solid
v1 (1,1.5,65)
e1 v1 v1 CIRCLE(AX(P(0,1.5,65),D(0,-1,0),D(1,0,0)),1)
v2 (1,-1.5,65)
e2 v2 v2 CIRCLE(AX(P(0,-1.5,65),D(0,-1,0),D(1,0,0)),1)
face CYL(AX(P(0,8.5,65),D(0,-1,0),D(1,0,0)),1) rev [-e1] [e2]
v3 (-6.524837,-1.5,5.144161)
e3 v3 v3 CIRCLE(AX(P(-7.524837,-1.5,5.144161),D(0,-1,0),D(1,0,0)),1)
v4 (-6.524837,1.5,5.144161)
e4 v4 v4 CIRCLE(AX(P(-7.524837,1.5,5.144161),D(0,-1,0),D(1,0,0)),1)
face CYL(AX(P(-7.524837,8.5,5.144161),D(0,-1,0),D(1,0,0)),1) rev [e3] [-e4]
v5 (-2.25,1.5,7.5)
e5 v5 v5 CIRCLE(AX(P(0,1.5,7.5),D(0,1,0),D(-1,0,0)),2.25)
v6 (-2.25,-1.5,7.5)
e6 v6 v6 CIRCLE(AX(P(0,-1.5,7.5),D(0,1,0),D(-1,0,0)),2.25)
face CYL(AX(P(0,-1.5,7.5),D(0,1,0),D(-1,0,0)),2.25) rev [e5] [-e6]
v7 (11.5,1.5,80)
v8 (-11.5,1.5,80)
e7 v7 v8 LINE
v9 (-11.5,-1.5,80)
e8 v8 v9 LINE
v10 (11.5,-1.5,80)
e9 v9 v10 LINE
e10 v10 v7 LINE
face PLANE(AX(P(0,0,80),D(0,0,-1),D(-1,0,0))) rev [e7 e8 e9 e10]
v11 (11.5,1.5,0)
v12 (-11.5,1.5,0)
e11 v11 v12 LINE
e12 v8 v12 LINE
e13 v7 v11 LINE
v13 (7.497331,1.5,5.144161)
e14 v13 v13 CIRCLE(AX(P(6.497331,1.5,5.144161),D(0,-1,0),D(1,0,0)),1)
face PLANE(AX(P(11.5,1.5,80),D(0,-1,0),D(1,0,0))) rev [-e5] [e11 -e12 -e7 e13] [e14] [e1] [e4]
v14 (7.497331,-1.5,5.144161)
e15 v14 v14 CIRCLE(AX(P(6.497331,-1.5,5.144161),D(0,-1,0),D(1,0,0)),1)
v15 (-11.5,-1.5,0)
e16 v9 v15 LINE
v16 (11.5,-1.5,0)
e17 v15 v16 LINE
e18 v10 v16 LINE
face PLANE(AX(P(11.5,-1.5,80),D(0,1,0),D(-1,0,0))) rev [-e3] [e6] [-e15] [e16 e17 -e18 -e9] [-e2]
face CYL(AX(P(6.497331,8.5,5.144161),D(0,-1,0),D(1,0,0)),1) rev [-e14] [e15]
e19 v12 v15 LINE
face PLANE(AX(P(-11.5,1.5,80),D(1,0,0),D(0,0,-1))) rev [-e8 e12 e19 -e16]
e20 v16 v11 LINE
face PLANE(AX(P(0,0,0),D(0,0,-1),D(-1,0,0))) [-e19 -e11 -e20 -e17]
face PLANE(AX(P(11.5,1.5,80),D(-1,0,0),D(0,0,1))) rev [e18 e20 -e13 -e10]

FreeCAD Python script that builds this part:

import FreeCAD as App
import Part
import Sketcher

V = App.Vector


def add_polygon(sketch, points):
    """Adds a closed chain of lines whose ends are joined by coincident constraints."""
    first, n = sketch.GeometryCount, len(points)
    for a, b in zip(points, points[1:] + points[:1]):
        sketch.addGeometry(Part.LineSegment(App.Vector(*a, 0), App.Vector(*b, 0)), False)
    for i in range(n):
        sketch.addConstraint(Sketcher.Constraint("Coincident", first + i, 2, first + (i + 1) % n, 1))

doc = App.newDocument("Part")
body = doc.addObject("PartDesign::Body", "Body")

# Sketch on XY plane
sketch1 = body.newObject("Sketcher::SketchObject", "Sketch")
sketch1.AttachmentSupport = (doc.getObject("XY_Plane"), [""])
sketch1.MapMode = "FlatFace"
add_polygon(sketch1, [(-11.5, 1.5), (-11.5, -1.5), (11.5, -1.5), (11.5, 1.5)])  # lines 0-3
sketch1.addConstraint([
    Sketcher.Constraint("Vertical", 0),
    Sketcher.Constraint("Horizontal", 1),
    Sketcher.Constraint("Vertical", 2),
    Sketcher.Constraint("Horizontal", 3),
    Sketcher.Constraint("Symmetric", 0, 2, 2, 2, -1, 1),
    Sketcher.Constraint("DistanceX", 1, 1, 1, 2, 23.0),
    Sketcher.Constraint("DistanceY", 0, 2, 0, 1, 3.0),
])
pad1 = body.newObject("PartDesign::Pad", "Pad")
pad1.Profile = sketch1
pad1.Length = 80

# Sketch on XZ plane
sketch2 = body.newObject("Sketcher::SketchObject", "Sketch001")
sketch2.AttachmentSupport = (doc.getObject("XZ_Plane"), [""])
sketch2.MapMode = "FlatFace"
sketch2.AttachmentOffset = App.Placement(V(0, 0, 1.5), App.Rotation())
sketch2.addGeometry(Part.Circle(V(0, 65, 0), V(0, 0, 1), 1), False)
sketch2.addConstraint([
    Sketcher.Constraint("PointOnObject", 0, 3, -2),
    Sketcher.Constraint("Diameter", 0, 2.0),
    Sketcher.Constraint("DistanceY", -1, 1, 0, 3, 65.0),
])
pocket1 = body.newObject("PartDesign::Pocket", "Pocket")
pocket1.Profile = sketch2
pocket1.Length = 10

# Sketch on XZ plane
sketch3 = body.newObject("Sketcher::SketchObject", "Sketch002")
sketch3.AttachmentSupport = (doc.getObject("XZ_Plane"), [""])
sketch3.MapMode = "FlatFace"
sketch3.AttachmentOffset = App.Placement(V(0, 0, 1.5), App.Rotation())
sketch3.addGeometry([
    Part.Circle(V(6.5, 5.1, 0), V(0, 0, 1), 1),
    Part.Circle(V(-7.5, 5.1, 0), V(0, 0, 1), 1),
], False)
sketch3.addConstraint([
    Sketcher.Constraint("Equal", 0, 1),
    Sketcher.Constraint("Horizontal", 0, 3, 1, 3),
    Sketcher.Constraint("Diameter", 0, 2.0),
    Sketcher.Constraint("DistanceX", -1, 1, 0, 3, 6.497331),
    Sketcher.Constraint("DistanceY", -1, 1, 0, 3, 5.144161),
    Sketcher.Constraint("DistanceX", 1, 3, -1, 1, 7.524837),
])
pocket2 = body.newObject("PartDesign::Pocket", "Pocket001")
pocket2.Profile = sketch3
pocket2.Length = 10

# Sketch on XZ plane
sketch4 = body.newObject("Sketcher::SketchObject", "Sketch003")
sketch4.AttachmentSupport = (doc.getObject("XZ_Plane"), [""])
sketch4.MapMode = "FlatFace"
sketch4.AttachmentOffset = App.Placement(V(0, 0, -1.5), App.Rotation())
sketch4.addGeometry(Part.Circle(V(0, 7.5, 0), V(0, 0, 1), 2.2), False)
sketch4.addConstraint([
    Sketcher.Constraint("PointOnObject", 0, 3, -2),
    Sketcher.Constraint("Diameter", 0, 4.5),
    Sketcher.Constraint("DistanceY", -1, 1, 0, 3, 7.5),
])
pocket3 = body.newObject("PartDesign::Pocket", "Pocket002")
pocket3.Profile = sketch4
pocket3.Type = "ThroughAll"
pocket3.Reversed = True

doc.recompute()
